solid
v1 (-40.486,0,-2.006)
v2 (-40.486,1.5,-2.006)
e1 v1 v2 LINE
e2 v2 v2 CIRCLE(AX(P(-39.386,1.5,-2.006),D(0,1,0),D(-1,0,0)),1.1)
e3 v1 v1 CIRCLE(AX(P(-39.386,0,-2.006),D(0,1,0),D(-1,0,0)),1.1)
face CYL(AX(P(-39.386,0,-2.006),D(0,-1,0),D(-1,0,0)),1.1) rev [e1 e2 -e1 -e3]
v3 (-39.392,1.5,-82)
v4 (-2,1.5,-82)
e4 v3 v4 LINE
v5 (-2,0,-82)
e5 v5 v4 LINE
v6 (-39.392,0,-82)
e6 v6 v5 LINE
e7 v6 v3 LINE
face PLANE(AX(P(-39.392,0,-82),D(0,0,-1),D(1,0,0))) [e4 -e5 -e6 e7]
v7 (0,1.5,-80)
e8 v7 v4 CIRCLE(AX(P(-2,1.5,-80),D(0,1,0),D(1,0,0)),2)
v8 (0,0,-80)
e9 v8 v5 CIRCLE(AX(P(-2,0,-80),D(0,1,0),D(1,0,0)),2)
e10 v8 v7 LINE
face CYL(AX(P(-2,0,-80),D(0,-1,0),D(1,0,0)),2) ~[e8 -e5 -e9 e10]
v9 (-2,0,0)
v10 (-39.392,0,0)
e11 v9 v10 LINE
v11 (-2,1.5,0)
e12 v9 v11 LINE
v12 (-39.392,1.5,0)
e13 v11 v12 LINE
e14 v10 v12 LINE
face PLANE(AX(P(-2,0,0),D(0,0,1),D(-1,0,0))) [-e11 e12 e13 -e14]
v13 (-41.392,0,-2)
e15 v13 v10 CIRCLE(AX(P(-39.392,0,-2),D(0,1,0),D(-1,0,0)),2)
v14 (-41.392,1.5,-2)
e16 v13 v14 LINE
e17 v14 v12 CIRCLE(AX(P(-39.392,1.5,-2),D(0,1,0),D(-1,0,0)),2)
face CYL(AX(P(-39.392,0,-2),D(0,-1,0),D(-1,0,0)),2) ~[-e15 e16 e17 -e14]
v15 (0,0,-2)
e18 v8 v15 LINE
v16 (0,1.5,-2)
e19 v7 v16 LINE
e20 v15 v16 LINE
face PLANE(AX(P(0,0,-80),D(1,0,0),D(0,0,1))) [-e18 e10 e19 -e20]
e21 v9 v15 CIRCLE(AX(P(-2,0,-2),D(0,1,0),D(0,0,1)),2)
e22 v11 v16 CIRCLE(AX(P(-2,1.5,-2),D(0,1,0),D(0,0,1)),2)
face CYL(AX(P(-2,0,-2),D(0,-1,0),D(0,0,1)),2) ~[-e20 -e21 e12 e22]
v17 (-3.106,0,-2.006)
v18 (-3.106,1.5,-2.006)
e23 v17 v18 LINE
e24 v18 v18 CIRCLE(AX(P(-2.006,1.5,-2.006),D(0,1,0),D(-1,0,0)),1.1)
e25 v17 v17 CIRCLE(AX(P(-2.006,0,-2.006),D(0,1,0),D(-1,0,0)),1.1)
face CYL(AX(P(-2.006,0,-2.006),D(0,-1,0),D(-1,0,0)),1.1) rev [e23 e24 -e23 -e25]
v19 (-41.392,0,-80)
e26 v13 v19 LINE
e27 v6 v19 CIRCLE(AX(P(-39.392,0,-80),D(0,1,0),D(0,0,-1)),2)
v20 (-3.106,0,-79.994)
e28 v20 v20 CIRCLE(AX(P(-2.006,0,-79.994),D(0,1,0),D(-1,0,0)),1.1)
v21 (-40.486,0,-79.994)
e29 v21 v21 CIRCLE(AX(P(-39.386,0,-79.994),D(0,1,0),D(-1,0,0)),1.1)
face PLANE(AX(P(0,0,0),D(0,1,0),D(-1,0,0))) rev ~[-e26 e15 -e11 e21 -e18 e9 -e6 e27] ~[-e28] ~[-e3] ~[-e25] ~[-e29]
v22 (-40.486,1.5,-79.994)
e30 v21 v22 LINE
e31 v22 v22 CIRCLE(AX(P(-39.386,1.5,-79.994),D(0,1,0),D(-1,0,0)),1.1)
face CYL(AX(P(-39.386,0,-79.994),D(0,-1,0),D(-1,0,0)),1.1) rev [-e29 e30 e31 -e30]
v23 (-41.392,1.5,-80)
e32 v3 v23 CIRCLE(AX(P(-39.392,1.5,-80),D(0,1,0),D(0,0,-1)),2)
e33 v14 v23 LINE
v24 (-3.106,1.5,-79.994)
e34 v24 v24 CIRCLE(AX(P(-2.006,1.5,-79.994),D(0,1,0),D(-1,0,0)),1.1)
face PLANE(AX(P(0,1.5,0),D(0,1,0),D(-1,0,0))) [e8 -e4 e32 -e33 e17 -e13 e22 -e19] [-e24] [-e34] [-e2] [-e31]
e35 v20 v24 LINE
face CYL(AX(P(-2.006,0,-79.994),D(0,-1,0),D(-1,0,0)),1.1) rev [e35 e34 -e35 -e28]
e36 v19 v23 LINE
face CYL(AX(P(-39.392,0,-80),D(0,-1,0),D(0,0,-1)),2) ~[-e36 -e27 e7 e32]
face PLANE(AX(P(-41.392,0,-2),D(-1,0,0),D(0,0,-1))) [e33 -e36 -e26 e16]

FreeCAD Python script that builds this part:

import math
import FreeCAD as App
import Part
import Sketcher
Q = App.Units.Quantity

doc = App.newDocument("Part")
body = doc.addObject("PartDesign::Body", "Body")

# Sketch on XZ plane
sketch1 = body.newObject("Sketcher::SketchObject", "Sketch")
sketch1.AttachmentSupport = (doc.getObject("XZ_Plane"), [""])
sketch1.MapMode = "FlatFace"
sketch1.addGeometry([
    Part.LineSegment(App.Vector(-39.4, 0, 0), App.Vector(-2, 0, 0)),  # 0
    Part.ArcOfCircle(Part.Circle(App.Vector(-2, -2, 0), App.Vector(0, 0, 1), 2), math.radians(0), math.radians(90)),  # 1
    Part.LineSegment(App.Vector(0, -2, 0), App.Vector(0, -80, 0)),  # 2
    Part.ArcOfCircle(Part.Circle(App.Vector(-2, -80, 0), App.Vector(0, 0, 1), 2), math.radians(-90), math.radians(0)),  # 3
    Part.LineSegment(App.Vector(-2, -82, 0), App.Vector(-39.4, -82, 0)),  # 4
    Part.ArcOfCircle(Part.Circle(App.Vector(-39.4, -80, 0), App.Vector(0, 0, 1), 2), math.radians(180), math.radians(270)),  # 5
    Part.LineSegment(App.Vector(-41.4, -80, 0), App.Vector(-41.4, -2, 0)),  # 6
    Part.ArcOfCircle(Part.Circle(App.Vector(-39.4, -2, 0), App.Vector(0, 0, 1), 2), math.radians(90), math.radians(180)),  # 7
    Part.Circle(App.Vector(-2, -80, 0), App.Vector(0, 0, 1), 1.1),  # 8
    Part.Circle(App.Vector(-39.4, -80, 0), App.Vector(0, 0, 1), 1.1),  # 9
    Part.Circle(App.Vector(-2, -2, 0), App.Vector(0, 0, 1), 1.1),  # 10
    Part.Circle(App.Vector(-39.4, -2, 0), App.Vector(0, 0, 1), 1.1),  # 11
], False)
sketch1.addConstraint([
    Sketcher.Constraint("Tangent", 0, 2, 1, 2),
    Sketcher.Constraint("Tangent", 1, 1, 2, 1),
    Sketcher.Constraint("Tangent", 2, 2, 3, 2),
    Sketcher.Constraint("Tangent", 3, 1, 4, 1),
    Sketcher.Constraint("Tangent", 4, 2, 5, 2),
    Sketcher.Constraint("Tangent", 5, 1, 6, 1),
    Sketcher.Constraint("Tangent", 6, 2, 7, 2),
    Sketcher.Constraint("Tangent", 7, 1, 0, 1),
    Sketcher.Constraint("Horizontal", 0),
    Sketcher.Constraint("Vertical", 2),
    Sketcher.Constraint("Horizontal", 4),
    Sketcher.Constraint("Vertical", 6),
    Sketcher.Constraint("Equal", 1, 3),
    Sketcher.Constraint("Equal", 3, 5),
    Sketcher.Constraint("Equal", 5, 7),
    Sketcher.Constraint("Equal", 8, 9),
    Sketcher.Constraint("Equal", 9, 10),
    Sketcher.Constraint("Equal", 10, 11),
    Sketcher.Constraint("PointOnObject", 0, 2, -1),
    Sketcher.Constraint("PointOnObject", 1, 1, -2),
    Sketcher.Constraint("Horizontal", 8, 3, 9, 3),
    Sketcher.Constraint("Horizontal", 10, 3, 11, 3),
    Sketcher.Constraint("Vertical", 8, 3, 10, 3),
    Sketcher.Constraint("Vertical", 9, 3, 11, 3),
    Sketcher.Constraint("Radius", 1, Q("2 mm")),
    Sketcher.Constraint("Diameter", 8, Q("2.2 mm")),
    Sketcher.Constraint("DistanceY", 3, 1, -1, 1, Q("82 mm")),
    Sketcher.Constraint("DistanceX", 8, 3, -1, 1, Q("2.006 mm")),
    Sketcher.Constraint("DistanceY", 10, 3, -1, 1, Q("2.006 mm")),
    Sketcher.Constraint("DistanceX", 5, 1, -1, 1, Q("41.392 mm")),
    Sketcher.Constraint("DistanceX", 9, 3, 3, 3, Q("37.386 mm")),
    Sketcher.Constraint("DistanceY", 3, 1, 8, 3, Q("2.006 mm")),
])
pad1 = body.newObject("PartDesign::Pad", "Pad")
pad1.Profile = sketch1
pad1.Length = 1.5
pad1.Reversed = True

doc.recompute()
